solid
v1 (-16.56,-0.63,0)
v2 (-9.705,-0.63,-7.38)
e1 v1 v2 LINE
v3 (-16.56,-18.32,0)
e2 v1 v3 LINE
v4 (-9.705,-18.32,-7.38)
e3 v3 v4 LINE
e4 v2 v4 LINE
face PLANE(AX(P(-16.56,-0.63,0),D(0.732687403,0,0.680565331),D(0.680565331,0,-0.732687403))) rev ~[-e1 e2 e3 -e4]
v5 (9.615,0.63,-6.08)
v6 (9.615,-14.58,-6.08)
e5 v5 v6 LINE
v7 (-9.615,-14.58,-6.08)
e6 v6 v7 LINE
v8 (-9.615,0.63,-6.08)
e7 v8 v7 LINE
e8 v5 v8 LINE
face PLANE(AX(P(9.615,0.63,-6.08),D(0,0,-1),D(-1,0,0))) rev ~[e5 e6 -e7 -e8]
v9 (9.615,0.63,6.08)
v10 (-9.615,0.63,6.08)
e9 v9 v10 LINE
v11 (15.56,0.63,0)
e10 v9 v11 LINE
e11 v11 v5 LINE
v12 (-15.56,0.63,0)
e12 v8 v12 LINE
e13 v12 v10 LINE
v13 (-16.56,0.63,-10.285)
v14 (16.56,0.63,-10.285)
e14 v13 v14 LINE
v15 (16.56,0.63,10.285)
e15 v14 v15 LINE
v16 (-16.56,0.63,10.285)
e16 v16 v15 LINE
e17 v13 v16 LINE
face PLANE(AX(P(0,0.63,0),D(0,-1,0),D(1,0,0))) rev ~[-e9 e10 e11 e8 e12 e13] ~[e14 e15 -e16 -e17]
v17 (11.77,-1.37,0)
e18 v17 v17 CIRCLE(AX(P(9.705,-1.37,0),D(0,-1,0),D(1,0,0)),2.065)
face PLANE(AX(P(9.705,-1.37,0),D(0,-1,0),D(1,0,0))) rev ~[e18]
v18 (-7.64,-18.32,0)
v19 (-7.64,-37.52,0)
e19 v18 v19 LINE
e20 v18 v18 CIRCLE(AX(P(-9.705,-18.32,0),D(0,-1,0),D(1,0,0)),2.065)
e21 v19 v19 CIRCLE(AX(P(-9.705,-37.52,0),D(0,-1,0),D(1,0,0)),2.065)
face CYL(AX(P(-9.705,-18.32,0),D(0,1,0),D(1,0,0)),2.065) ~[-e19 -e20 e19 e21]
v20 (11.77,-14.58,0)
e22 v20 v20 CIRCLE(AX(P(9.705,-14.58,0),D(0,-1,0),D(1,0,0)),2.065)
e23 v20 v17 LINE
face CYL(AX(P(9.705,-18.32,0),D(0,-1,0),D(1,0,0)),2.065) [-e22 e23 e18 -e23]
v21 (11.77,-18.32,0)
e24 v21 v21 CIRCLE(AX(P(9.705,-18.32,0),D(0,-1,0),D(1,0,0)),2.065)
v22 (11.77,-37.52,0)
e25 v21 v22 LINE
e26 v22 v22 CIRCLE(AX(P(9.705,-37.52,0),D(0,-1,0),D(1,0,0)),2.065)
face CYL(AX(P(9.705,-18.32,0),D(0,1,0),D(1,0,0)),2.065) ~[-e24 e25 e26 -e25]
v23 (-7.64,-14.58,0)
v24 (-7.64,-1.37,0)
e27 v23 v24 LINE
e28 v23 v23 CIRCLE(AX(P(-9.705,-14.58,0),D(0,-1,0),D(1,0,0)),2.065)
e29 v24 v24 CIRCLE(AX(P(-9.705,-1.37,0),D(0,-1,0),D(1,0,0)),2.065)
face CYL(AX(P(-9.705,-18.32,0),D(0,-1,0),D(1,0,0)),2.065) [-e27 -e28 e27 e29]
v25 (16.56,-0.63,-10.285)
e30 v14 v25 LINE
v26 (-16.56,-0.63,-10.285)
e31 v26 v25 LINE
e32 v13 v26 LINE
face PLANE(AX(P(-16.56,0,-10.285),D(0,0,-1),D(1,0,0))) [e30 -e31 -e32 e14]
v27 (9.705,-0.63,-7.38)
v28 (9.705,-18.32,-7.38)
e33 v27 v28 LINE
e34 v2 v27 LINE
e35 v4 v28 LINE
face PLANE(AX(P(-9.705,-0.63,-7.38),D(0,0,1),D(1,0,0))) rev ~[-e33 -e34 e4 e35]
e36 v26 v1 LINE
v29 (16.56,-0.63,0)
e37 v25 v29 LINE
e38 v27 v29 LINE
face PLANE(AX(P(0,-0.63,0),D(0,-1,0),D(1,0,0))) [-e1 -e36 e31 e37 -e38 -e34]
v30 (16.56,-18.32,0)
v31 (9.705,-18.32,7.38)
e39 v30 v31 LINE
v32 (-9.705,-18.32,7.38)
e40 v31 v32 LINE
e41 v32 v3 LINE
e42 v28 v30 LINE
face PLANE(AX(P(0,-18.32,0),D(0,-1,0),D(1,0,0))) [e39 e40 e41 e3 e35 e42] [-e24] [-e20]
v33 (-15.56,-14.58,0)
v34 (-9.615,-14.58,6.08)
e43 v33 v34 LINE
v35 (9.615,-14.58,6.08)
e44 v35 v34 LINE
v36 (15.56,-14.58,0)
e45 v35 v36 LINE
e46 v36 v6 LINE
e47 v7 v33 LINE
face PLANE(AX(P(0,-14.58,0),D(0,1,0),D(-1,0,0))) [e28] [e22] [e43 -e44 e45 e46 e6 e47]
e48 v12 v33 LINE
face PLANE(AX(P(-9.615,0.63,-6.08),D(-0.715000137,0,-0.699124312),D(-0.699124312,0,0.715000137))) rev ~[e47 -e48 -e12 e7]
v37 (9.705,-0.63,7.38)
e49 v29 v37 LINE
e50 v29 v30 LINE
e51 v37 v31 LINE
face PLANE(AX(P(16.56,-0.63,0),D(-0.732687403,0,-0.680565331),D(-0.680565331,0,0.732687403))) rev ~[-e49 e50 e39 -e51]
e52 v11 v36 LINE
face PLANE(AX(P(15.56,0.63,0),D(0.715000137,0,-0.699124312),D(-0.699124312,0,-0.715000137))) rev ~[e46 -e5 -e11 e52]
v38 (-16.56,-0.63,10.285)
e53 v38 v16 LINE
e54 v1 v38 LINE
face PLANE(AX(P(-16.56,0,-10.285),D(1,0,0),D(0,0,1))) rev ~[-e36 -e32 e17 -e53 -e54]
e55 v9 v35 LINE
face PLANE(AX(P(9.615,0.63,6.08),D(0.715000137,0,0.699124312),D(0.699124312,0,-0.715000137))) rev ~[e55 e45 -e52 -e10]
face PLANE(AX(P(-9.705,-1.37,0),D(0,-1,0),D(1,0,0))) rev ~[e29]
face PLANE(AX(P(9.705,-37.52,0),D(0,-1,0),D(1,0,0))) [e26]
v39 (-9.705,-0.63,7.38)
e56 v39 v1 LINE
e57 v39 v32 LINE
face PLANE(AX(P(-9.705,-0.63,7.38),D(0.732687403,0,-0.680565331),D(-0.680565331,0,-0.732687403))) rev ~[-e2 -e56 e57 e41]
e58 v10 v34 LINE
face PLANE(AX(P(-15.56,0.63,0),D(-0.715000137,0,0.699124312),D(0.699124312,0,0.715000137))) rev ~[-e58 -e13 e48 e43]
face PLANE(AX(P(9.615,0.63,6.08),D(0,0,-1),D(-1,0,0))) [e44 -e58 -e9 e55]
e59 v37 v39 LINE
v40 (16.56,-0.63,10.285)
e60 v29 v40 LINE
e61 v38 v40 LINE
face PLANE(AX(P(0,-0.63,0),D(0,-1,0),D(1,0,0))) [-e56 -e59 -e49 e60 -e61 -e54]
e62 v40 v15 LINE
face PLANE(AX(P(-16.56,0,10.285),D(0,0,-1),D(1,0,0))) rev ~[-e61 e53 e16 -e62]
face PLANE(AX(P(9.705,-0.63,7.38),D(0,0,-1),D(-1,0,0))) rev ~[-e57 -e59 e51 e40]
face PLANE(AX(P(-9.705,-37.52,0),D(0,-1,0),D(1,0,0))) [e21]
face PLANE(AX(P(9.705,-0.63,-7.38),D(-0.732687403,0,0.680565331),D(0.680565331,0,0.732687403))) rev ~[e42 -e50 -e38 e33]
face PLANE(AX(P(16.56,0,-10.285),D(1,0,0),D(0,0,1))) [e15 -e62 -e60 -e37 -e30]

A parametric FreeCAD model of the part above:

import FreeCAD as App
import Part
import Sketcher
from FreeCAD import Vector
Q = App.Units.Quantity


def add_polygon(sketch, points):
    """Adds a closed chain of lines whose ends are joined by coincident constraints."""
    first, n = sketch.GeometryCount, len(points)
    for a, b in zip(points, points[1:] + points[:1]):
        sketch.addGeometry(Part.LineSegment(App.Vector(*a, 0), App.Vector(*b, 0)), False)
    for i in range(n):
        sketch.addConstraint(Sketcher.Constraint("Coincident", first + i, 2, first + (i + 1) % n, 1))

doc = App.newDocument("Part")
params = doc.addObject("Spreadsheet::Sheet", "Params")
for row, (alias, value) in enumerate([
    ("sketch1_width", "33.12 mm"),
    ("sketch1_height", "20.57 mm"),
    ("pad1_length", "1.26 mm"),
    ("sketch2_width", "19.41 mm"),
    ("pad2_length", "17.69 mm"),
    ("sketch3_width", "19.23 mm"),
    ("pocket1_length", "15.21 mm"),
    ("sketch4_diameter", "4.13 mm"),
    ("pad3_length", "19.2 mm"),
    ("pad3_length2", "16.95 mm"),
], start=1):
    params.set(f"A{row}", alias)
    params.set(f"B{row}", "=" + value)
    params.setAlias(f"B{row}", alias)

body = doc.addObject("PartDesign::Body", "Body")

# Sketch on XZ plane
sketch1 = body.newObject("Sketcher::SketchObject", "Sketch")
sketch1.AttachmentSupport = (doc.getObject("XZ_Plane"), [""])
sketch1.MapMode = "FlatFace"
add_polygon(sketch1, [(-16.56, 10.285), (-16.56, -10.285), (16.56, -10.285), (16.56, 10.285)])  # lines 0-3
sketch1.addConstraint(Sketcher.Constraint("Vertical", 0))
sketch1.addConstraint(Sketcher.Constraint("Horizontal", 1))
sketch1.addConstraint(Sketcher.Constraint("Vertical", 2))
sketch1.addConstraint(Sketcher.Constraint("Horizontal", 3))
sketch1.addConstraint(Sketcher.Constraint("Symmetric", 0, 2, 2, 2, -1, 1))
sketch1.addConstraint(Sketcher.Constraint("DistanceX", 1, 1, 1, 2, Q("33.12 mm")))
sketch1.addConstraint(Sketcher.Constraint("DistanceY", 0, 2, 0, 1, Q("20.57 mm")))
sketch1.setExpression("Constraints[9]", "Params.sketch1_width")
sketch1.setExpression("Constraints[10]", "Params.sketch1_height")
pad1 = body.newObject("PartDesign::Pad", "Pad")
pad1.Profile = sketch1
pad1.setExpression("Length", "Params.pad1_length")
pad1.Midplane = True

# Sketch on XZ plane
sketch2 = body.newObject("Sketcher::SketchObject", "Sketch001")
sketch2.AttachmentSupport = (doc.getObject("XZ_Plane"), [""])
sketch2.MapMode = "FlatFace"
sketch2.AttachmentOffset = App.Placement(Vector(0, 0, 0.63), App.Rotation())
add_polygon(sketch2, [(16.56, 0), (9.705, 7.38), (-9.705, 7.38), (-16.56, 0), (-9.705, -7.38), (9.705, -7.38)])  # lines 0-5
sketch2.addConstraint(Sketcher.Constraint("Horizontal", 1))
sketch2.addConstraint(Sketcher.Constraint("Horizontal", 4))
sketch2.addConstraint(Sketcher.Constraint("Symmetric", 0, 2, 3, 2, -1, 1))
sketch2.addConstraint(Sketcher.Constraint("Symmetric", 2, 2, 5, 2, -1, 1))
sketch2.addConstraint(Sketcher.Constraint("PointOnObject", 2, 2, -1))
sketch2.addConstraint(Sketcher.Constraint("Parallel", 2, 5))
sketch2.addConstraint(Sketcher.Constraint("Vertical", 1, 2, 3, 2))
sketch2.addConstraint(Sketcher.Constraint("DistanceX", 1, 2, 1, 1, Q("19.41 mm")))
sketch2.addConstraint(Sketcher.Constraint("DistanceY", -1, 1, 0, 2, Q("7.38 mm")))
sketch2.addConstraint(Sketcher.Constraint("DistanceX", 2, 2, -1, 1, Q("16.56 mm")))
sketch2.setExpression("Constraints[13]", "Params.sketch2_width")
pad2 = body.newObject("PartDesign::Pad", "Pad001")
pad2.Profile = sketch2
pad2.setExpression("Length", "Params.pad2_length")

# Sketch on XZ plane
sketch3 = body.newObject("Sketcher::SketchObject", "Sketch002")
sketch3.AttachmentSupport = (doc.getObject("XZ_Plane"), [""])
sketch3.MapMode = "FlatFace"
sketch3.AttachmentOffset = App.Placement(Vector(0, 0, -0.63), App.Rotation())
add_polygon(sketch3, [(9.615, -6.08), (-9.615, -6.08), (-15.56, 0), (-9.615, 6.08), (9.615, 6.08), (15.56, 0)])  # lines 0-5
sketch3.addConstraint(Sketcher.Constraint("Horizontal", 0))
sketch3.addConstraint(Sketcher.Constraint("Horizontal", 3))
sketch3.addConstraint(Sketcher.Constraint("Symmetric", 0, 2, 3, 2, -1, 1))
sketch3.addConstraint(Sketcher.Constraint("Symmetric", 1, 2, 4, 2, -1, 1))
sketch3.addConstraint(Sketcher.Constraint("PointOnObject", 1, 2, -1))
sketch3.addConstraint(Sketcher.Constraint("Parallel", 2, 5))
sketch3.addConstraint(Sketcher.Constraint("Vertical", 0, 2, 2, 2))
sketch3.addConstraint(Sketcher.Constraint("DistanceX", 0, 2, 0, 1, Q("19.23 mm")))
sketch3.addConstraint(Sketcher.Constraint("DistanceY", 0, 2, -1, 1, Q("6.08 mm")))
sketch3.addConstraint(Sketcher.Constraint("DistanceX", 1, 2, -1, 1, Q("15.56 mm")))
sketch3.setExpression("Constraints[13]", "Params.sketch3_width")
pocket1 = body.newObject("PartDesign::Pocket", "Pocket")
pocket1.Profile = sketch3
pocket1.setExpression("Length", "Params.pocket1_length")
pocket1.Reversed = True

# Sketch on XZ plane
sketch4 = body.newObject("Sketcher::SketchObject", "Sketch003")
sketch4.AttachmentSupport = (doc.getObject("XZ_Plane"), [""])
sketch4.MapMode = "FlatFace"
sketch4.AttachmentOffset = App.Placement(Vector(0, 0, 18.32), App.Rotation())
sketch4.addGeometry(Part.Circle(Vector(-9.705, 0, 0), Vector(0, 0, 1), 2.065), False)
sketch4.addGeometry(Part.Circle(Vector(9.705, 0, 0), Vector(0, 0, 1), 2.065), False)
sketch4.addConstraint(Sketcher.Constraint("Equal", 0, 1))
sketch4.addConstraint(Sketcher.Constraint("Symmetric", 0, 3, 1, 3, -1, 1))
sketch4.addConstraint(Sketcher.Constraint("PointOnObject", 0, 3, -1))
sketch4.addConstraint(Sketcher.Constraint("Diameter", 0, Q("4.13 mm")))
sketch4.addConstraint(Sketcher.Constraint("DistanceX", 0, 3, 1, 3, Q("19.41 mm")))
sketch4.setExpression("Constraints[3]", "Params.sketch4_diameter")
pad3 = body.newObject("PartDesign::Pad", "Pad002")
pad3.Profile = sketch4
pad3.Type = "TwoLengths"
pad3.setExpression("Length", "Params.pad3_length")
pad3.setExpression("Length2", "Params.pad3_length2")

doc.recompute()
